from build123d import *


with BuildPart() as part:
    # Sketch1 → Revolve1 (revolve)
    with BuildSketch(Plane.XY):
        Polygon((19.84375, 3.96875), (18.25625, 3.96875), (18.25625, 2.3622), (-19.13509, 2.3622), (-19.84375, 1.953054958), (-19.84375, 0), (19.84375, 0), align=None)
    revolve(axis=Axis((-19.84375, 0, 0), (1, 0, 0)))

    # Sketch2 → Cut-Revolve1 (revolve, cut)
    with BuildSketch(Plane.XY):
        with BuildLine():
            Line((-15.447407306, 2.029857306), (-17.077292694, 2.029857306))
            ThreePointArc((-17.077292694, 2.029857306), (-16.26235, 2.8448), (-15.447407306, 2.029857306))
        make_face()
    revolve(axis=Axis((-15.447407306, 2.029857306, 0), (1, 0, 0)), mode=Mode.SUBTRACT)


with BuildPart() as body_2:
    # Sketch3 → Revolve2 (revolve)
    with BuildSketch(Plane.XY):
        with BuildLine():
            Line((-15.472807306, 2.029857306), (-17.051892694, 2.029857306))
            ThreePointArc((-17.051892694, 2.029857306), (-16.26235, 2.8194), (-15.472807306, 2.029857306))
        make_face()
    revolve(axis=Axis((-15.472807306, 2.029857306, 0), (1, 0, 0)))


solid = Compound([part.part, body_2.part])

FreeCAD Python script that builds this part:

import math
import FreeCAD as App
import Part
import Sketcher
from FreeCAD import Vector
Q = App.Units.Quantity


def add_polygon(sketch, points):
    """Adds a closed chain of lines whose ends are joined by coincident constraints."""
    first, n = sketch.GeometryCount, len(points)
    for a, b in zip(points, points[1:] + points[:1]):
        sketch.addGeometry(Part.LineSegment(App.Vector(*a, 0), App.Vector(*b, 0)), False)
    for i in range(n):
        sketch.addConstraint(Sketcher.Constraint("Coincident", first + i, 2, first + (i + 1) % n, 1))

doc = App.newDocument("Part")
params = doc.addObject("Spreadsheet::Sheet", "Params")
for row, (alias, value) in enumerate([
    ("sketch1_width", "0.0625 in"),
    ("sketch1_height", "0.15625 in"),
    ("revolution_angle", "360 deg"),
    ("groove_angle", "360 deg"),
    ("revolution2_angle", "360 deg"),
], start=1):
    params.set(f"A{row}", alias)
    params.set(f"B{row}", "=" + value)
    params.setAlias(f"B{row}", alias)

body = doc.addObject("PartDesign::Body", "Body")

# Sketch on XY plane
sketch1 = doc.addObject("Sketcher::SketchObject", "Sketch")
body.addObject(sketch1)
sketch1.AttachmentSupport = (doc.XY_Plane, [""])
sketch1.MapMode = "FlatFace"
add_polygon(sketch1, [(19.8, 4), (18.3, 4), (18.3, 2.4), (-19.1, 2.4), (-19.8, 2), (-19.8, 0), (19.8, 0)])  # lines 0-6
sketch1.addConstraint([
    Sketcher.Constraint("Horizontal", 0),
    Sketcher.Constraint("Vertical", 1),
    Sketcher.Constraint("Horizontal", 2),
    Sketcher.Constraint("Vertical", 4),
    Sketcher.Constraint("Horizontal", 5),
    Sketcher.Constraint("Vertical", 6),
    Sketcher.Constraint("Symmetric", 4, 2, 5, 2, -1, 1),
    Sketcher.Constraint("Angle", 3, Q("-150 deg")),
    Sketcher.Constraint("DistanceX", 3, 2, 1, 2, Q("1.5 in")),
    Sketcher.Constraint("DistanceX", 0, 2, 0, 1, Q("0.0625 in")),
    Sketcher.Constraint("DistanceY", 6, 1, 6, 2, Q("0.15625 in")),
    Sketcher.Constraint("DistanceX", 2, 2, 2, 1, Q("1.4721 in")),
    Sketcher.Constraint("DistanceY", -1, 1, 1, 2, Q("0.093 in")),
])
sketch1.setExpression("Constraints[16]", "Params.sketch1_width")
sketch1.setExpression("Constraints[17]", "Params.sketch1_height")
revolution = doc.addObject("PartDesign::Revolution", "Revolution")
body.addObject(revolution)
revolution.Profile = sketch1
revolution.ReferenceAxis = (sketch1, ["H_Axis"])
revolution.setExpression("Angle", "Params.revolution_angle")

# Sketch on XY plane
sketch2 = doc.addObject("Sketcher::SketchObject", "Sketch001")
body.addObject(sketch2)
sketch2.AttachmentSupport = (doc.XY_Plane, [""])
sketch2.MapMode = "FlatFace"
sketch2.addGeometry([
    Part.LineSegment(Vector(-17.1, 2, 0), Vector(-15.4, 2, 0)),
    Part.ArcOfCircle(Part.Circle(Vector(-16.3, 2, 0), Vector(0, 0, 1), 0.8), math.radians(0), math.radians(180)),
], False)
sketch2.addGeometry(Part.LineSegment(Vector(-17.1, 2, 0), Vector(-15.4, 2, 0)), True)  # axis
sketch2.addConstraint([
    Sketcher.Constraint("Coincident", 0, 1, 1, 2),
    Sketcher.Constraint("Coincident", 1, 1, 0, 2),
    Sketcher.Constraint("Horizontal", 0),
    Sketcher.Constraint("Horizontal", 2),
    Sketcher.Constraint("Coincident", 2, 1, 0, 1),
    Sketcher.Constraint("Horizontal", 1, 3, 0, 1),
    Sketcher.Constraint("Equal", 0, 2),
    Sketcher.Constraint("Radius", 1, 0.814943),
    Sketcher.Constraint("DistanceX", 1, 3, -1, 1, 16.26235),
    Sketcher.Constraint("DistanceY", -1, 1, 1, 3, 2.029857),
])
groove = doc.addObject("PartDesign::Groove", "Groove")
body.addObject(groove)
groove.Profile = sketch2
groove.ReferenceAxis = (sketch2, ["Axis0"])
groove.setExpression("Angle", "Params.groove_angle")
body2 = doc.addObject("PartDesign::Body", "Body001")

# Sketch on XY plane
sketch3 = doc.addObject("Sketcher::SketchObject", "Sketch002")
body2.addObject(sketch3)
sketch3.AttachmentSupport = (doc.getObject("XY_Plane001"), [""])
sketch3.MapMode = "FlatFace"
sketch3.addGeometry([
    Part.LineSegment(Vector(-17.1, 2, 0), Vector(-15.5, 2, 0)),
    Part.ArcOfCircle(Part.Circle(Vector(-16.3, 2, 0), Vector(0, 0, 1), 0.8), math.radians(0), math.radians(180)),
], False)
sketch3.addGeometry(Part.LineSegment(Vector(-17.1, 2, 0), Vector(-15.5, 2, 0)), True)  # axis
sketch3.addConstraint([
    Sketcher.Constraint("Coincident", 0, 1, 1, 2),
    Sketcher.Constraint("Coincident", 1, 1, 0, 2),
    Sketcher.Constraint("Horizontal", 0),
    Sketcher.Constraint("Horizontal", 2),
    Sketcher.Constraint("Coincident", 2, 1, 0, 1),
    Sketcher.Constraint("Horizontal", 1, 3, 0, 1),
    Sketcher.Constraint("Equal", 0, 2),
    Sketcher.Constraint("Radius", 1, 0.789543),
    Sketcher.Constraint("DistanceX", 1, 3, -1, 1, 16.26235),
    Sketcher.Constraint("DistanceY", -1, 1, 1, 3, 2.029857),
])
revolution2 = doc.addObject("PartDesign::Revolution", "Revolution001")
body2.addObject(revolution2)
revolution2.Profile = sketch3
revolution2.ReferenceAxis = (sketch3, ["Axis0"])
revolution2.setExpression("Angle", "Params.revolution2_angle")

doc.recompute()
